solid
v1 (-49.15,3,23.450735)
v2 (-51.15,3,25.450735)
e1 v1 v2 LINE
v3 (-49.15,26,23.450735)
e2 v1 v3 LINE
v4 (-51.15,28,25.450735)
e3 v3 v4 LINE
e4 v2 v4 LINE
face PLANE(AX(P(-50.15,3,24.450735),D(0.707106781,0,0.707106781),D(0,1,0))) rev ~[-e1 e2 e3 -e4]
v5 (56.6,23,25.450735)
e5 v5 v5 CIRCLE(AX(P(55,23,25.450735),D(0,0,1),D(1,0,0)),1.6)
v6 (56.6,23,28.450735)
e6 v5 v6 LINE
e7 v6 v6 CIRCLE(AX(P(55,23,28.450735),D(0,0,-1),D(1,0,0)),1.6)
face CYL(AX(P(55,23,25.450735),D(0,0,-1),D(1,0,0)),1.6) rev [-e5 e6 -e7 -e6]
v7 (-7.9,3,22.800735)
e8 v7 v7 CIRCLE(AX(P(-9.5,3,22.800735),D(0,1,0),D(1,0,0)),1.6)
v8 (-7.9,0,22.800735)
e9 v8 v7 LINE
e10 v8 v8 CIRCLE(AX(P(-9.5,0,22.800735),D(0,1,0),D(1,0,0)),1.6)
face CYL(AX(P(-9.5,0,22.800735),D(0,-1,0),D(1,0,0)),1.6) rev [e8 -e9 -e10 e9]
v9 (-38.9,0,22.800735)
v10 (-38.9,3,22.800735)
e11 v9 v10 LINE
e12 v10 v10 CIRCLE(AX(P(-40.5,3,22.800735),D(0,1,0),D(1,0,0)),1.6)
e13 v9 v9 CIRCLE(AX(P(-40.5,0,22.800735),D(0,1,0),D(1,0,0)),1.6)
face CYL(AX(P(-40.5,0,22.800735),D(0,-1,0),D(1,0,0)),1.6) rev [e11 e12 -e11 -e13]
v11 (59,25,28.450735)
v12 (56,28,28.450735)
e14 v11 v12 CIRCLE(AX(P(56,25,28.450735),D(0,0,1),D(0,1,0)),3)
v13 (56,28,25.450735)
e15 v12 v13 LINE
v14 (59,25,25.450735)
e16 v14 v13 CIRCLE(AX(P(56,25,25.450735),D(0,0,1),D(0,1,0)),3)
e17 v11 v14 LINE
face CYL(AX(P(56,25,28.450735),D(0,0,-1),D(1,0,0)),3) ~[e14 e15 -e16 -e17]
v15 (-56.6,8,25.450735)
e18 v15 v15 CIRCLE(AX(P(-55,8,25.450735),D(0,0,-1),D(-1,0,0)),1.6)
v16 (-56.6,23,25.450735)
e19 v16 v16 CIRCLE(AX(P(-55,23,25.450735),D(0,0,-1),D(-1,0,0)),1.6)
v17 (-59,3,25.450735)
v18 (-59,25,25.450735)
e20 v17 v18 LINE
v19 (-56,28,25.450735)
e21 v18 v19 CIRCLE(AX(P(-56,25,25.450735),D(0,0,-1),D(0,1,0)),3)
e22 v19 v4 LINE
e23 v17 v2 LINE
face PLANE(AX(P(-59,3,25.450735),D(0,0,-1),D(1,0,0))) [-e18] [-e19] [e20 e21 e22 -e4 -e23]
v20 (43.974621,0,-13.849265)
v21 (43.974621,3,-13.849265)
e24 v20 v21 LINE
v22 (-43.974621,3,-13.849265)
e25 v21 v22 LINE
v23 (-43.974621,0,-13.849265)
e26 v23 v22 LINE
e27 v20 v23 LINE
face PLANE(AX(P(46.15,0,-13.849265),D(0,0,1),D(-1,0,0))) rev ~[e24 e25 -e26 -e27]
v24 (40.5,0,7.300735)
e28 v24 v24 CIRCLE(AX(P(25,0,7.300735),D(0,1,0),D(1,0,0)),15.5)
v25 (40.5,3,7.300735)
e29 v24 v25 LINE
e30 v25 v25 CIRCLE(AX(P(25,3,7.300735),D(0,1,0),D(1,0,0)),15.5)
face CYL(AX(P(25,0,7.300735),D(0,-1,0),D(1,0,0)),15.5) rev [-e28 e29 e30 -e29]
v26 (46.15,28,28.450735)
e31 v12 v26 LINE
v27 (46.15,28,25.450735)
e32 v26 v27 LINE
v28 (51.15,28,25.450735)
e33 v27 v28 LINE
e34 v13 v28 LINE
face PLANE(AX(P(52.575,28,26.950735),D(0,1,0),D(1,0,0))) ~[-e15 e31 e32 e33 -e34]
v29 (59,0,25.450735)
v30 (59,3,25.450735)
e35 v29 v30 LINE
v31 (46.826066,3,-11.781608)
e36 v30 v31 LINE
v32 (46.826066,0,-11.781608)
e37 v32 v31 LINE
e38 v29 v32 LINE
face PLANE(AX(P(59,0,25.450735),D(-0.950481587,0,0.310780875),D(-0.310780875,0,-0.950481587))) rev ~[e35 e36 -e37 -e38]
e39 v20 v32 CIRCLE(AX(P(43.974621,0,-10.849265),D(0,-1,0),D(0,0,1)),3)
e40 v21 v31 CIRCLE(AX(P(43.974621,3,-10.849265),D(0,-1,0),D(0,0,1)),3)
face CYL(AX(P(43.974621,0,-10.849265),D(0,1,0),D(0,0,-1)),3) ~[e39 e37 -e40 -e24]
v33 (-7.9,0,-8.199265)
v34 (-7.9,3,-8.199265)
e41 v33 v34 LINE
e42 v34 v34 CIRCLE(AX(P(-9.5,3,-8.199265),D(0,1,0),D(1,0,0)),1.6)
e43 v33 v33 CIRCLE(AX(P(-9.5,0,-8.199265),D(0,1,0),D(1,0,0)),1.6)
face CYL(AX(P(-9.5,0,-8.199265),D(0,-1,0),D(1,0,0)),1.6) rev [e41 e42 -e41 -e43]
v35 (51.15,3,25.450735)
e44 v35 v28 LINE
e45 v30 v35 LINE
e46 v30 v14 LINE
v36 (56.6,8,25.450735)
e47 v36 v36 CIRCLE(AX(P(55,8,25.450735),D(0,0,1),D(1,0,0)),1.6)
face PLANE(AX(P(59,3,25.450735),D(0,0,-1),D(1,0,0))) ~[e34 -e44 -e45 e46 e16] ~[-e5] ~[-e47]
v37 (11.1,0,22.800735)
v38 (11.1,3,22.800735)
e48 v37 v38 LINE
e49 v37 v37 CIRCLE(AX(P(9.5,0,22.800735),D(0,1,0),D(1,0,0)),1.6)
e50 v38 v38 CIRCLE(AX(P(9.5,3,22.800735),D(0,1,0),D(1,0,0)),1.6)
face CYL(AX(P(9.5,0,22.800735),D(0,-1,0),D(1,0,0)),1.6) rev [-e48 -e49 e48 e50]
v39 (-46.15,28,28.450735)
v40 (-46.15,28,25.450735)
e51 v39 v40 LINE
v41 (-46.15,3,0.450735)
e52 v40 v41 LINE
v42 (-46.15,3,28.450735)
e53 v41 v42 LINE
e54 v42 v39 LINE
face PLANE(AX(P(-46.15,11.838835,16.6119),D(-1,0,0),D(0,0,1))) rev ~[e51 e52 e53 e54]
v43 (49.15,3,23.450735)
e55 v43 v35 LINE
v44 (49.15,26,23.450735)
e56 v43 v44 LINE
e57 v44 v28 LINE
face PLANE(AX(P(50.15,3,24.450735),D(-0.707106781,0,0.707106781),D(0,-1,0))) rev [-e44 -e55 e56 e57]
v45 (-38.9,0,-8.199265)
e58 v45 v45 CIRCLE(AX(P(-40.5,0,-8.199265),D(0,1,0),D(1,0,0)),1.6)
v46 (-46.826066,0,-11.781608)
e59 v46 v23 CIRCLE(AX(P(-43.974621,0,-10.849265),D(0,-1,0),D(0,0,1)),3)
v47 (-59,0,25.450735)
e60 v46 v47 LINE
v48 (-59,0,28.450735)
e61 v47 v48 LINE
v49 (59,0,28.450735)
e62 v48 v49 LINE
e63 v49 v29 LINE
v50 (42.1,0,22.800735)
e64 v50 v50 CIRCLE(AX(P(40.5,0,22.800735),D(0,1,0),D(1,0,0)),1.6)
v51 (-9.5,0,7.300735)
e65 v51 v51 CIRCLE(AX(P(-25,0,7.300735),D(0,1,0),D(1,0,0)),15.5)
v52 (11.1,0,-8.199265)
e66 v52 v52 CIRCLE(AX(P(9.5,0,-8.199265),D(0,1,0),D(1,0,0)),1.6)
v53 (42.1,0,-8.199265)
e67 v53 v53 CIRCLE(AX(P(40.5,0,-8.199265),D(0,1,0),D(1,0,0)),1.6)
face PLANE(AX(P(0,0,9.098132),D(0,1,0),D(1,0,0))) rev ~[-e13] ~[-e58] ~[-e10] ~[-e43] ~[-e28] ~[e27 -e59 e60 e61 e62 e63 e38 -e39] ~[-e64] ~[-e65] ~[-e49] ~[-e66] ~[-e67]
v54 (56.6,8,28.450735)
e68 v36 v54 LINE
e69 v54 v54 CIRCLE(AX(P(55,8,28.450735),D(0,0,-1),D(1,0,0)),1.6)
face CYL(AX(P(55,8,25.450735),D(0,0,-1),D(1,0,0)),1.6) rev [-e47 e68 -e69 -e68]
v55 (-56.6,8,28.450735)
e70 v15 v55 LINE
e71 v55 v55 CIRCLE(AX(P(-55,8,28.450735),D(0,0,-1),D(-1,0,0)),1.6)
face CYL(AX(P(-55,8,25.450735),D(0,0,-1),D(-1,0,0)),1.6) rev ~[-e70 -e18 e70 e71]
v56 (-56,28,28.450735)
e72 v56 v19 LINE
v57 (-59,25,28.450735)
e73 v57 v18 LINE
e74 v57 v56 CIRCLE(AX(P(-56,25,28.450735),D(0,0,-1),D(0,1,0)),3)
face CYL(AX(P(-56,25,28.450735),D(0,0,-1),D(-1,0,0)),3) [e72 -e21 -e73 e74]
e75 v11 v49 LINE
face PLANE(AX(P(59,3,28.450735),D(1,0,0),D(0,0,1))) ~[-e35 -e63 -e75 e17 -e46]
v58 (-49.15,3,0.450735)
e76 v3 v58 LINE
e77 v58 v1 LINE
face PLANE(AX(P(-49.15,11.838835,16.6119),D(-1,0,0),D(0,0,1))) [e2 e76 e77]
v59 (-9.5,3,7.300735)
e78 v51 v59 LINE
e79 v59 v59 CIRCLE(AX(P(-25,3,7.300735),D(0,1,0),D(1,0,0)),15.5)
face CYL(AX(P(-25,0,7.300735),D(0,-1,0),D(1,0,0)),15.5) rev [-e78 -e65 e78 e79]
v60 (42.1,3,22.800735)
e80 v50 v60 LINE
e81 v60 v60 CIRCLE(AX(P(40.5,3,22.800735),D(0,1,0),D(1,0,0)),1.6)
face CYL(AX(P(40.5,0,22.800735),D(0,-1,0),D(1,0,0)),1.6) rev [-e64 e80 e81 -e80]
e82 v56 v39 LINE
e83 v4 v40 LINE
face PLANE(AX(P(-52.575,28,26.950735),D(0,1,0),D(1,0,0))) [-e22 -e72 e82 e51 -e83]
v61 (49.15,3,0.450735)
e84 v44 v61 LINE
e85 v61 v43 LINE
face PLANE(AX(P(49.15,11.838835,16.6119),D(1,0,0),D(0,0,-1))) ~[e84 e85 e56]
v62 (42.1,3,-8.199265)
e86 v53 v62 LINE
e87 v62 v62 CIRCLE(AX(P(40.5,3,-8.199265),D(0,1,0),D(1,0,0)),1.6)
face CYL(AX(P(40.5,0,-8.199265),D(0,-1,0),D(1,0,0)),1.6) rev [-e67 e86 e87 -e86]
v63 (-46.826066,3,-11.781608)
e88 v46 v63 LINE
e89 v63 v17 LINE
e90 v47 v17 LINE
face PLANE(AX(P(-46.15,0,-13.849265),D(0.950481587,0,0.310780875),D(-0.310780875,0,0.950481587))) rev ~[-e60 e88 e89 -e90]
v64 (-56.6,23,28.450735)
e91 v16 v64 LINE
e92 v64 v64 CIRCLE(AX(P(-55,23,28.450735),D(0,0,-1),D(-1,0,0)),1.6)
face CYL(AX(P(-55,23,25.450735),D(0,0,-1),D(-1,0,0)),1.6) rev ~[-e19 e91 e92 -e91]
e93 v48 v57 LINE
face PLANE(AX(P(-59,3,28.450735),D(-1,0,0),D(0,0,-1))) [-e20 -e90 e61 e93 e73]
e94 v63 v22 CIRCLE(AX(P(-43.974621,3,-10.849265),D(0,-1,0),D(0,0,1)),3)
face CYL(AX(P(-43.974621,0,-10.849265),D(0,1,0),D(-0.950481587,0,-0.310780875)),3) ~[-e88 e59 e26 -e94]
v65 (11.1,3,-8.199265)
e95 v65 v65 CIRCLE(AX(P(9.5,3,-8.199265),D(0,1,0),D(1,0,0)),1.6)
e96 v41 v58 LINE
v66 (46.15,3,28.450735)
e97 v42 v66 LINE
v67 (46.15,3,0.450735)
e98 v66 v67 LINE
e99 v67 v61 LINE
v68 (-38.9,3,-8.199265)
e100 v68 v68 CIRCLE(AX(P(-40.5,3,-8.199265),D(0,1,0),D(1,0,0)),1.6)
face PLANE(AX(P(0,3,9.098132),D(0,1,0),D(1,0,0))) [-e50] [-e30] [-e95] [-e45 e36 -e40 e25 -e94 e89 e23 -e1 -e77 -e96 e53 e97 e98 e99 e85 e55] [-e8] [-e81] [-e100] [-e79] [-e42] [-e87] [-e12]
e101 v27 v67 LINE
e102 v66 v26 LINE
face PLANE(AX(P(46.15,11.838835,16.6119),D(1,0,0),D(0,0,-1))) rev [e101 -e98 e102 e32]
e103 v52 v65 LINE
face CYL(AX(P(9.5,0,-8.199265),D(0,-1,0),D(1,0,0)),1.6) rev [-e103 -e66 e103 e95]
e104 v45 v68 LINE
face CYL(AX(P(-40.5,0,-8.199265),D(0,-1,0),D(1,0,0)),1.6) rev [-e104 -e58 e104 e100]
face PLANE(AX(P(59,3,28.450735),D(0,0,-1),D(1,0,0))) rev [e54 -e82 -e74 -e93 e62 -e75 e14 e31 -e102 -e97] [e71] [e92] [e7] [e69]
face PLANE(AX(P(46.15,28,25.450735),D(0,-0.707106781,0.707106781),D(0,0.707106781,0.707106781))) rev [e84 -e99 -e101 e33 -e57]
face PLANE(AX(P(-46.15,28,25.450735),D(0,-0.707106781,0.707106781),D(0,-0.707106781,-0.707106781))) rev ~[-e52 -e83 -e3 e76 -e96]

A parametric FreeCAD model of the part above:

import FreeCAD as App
import Part
import Sketcher
Q = App.Units.Quantity


def edges_at(feature, points):
    """Names of the edges that pass closest to the given points."""
    edges = feature.Shape.Edges
    near = lambda p: min(range(len(edges)), key=lambda i: edges[i].distToShape(Part.Vertex(*p))[0])
    return sorted({f"Edge{near(p) + 1}" for p in points})


def add_polygon(sketch, points):
    """Adds a closed chain of lines whose ends are joined by coincident constraints."""
    first, n = sketch.GeometryCount, len(points)
    for a, b in zip(points, points[1:] + points[:1]):
        sketch.addGeometry(Part.LineSegment(App.Vector(*a, 0), App.Vector(*b, 0)), False)
    for i in range(n):
        sketch.addConstraint(Sketcher.Constraint("Coincident", first + i, 2, first + (i + 1) % n, 1))

doc = App.newDocument("Part")
body = doc.addObject("PartDesign::Body", "Body")

# Sketch on XZ plane
sketch1 = body.newObject("Sketcher::SketchObject", "Sketch")
sketch1.AttachmentSupport = (doc.getObject("XZ_Plane"), [""])
sketch1.MapMode = "FlatFace"
add_polygon(sketch1, [(46.15, -13.849265), (-46.15, -13.849265), (-59, 25.450735), (-59, 28.450735), (59, 28.450735), (59, 25.450735)])  # lines 0-5
sketch1.addGeometry(Part.Circle(App.Vector(-40.5, 22.800735, 0), App.Vector(0, 0, 1), 1.6), False)  # 6
sketch1.addGeometry(Part.Circle(App.Vector(-9.5, 22.800735, 0), App.Vector(0, 0, 1), 1.6), False)  # 7
sketch1.addGeometry(Part.Circle(App.Vector(9.5, 22.800735, 0), App.Vector(0, 0, 1), 1.6), False)  # 8
sketch1.addGeometry(Part.Circle(App.Vector(40.5, 22.800735, 0), App.Vector(0, 0, 1), 1.6), False)  # 9
sketch1.addGeometry(Part.Circle(App.Vector(-25, 7.300735, 0), App.Vector(0, 0, 1), 15.5), False)  # 10
sketch1.addGeometry(Part.Circle(App.Vector(-40.5, -8.199265, 0), App.Vector(0, 0, 1), 1.6), False)  # 11
sketch1.addGeometry(Part.Circle(App.Vector(-9.5, -8.199265, 0), App.Vector(0, 0, 1), 1.6), False)  # 12
sketch1.addGeometry(Part.Circle(App.Vector(25, 7.300735, 0), App.Vector(0, 0, 1), 15.5), False)  # 13
sketch1.addGeometry(Part.Circle(App.Vector(9.5, -8.199265, 0), App.Vector(0, 0, 1), 1.6), False)  # 14
sketch1.addGeometry(Part.Circle(App.Vector(40.5, -8.199265, 0), App.Vector(0, 0, 1), 1.6), False)  # 15
sketch1.addConstraint(Sketcher.Constraint("Horizontal", 0))
sketch1.addConstraint(Sketcher.Constraint("Vertical", 2))
sketch1.addConstraint(Sketcher.Constraint("Horizontal", 3))
sketch1.addConstraint(Sketcher.Constraint("Vertical", 4))
sketch1.addConstraint(Sketcher.Constraint("Equal", 6, 7))
sketch1.addConstraint(Sketcher.Constraint("Equal", 7, 8))
sketch1.addConstraint(Sketcher.Constraint("Equal", 8, 9))
sketch1.addConstraint(Sketcher.Constraint("Equal", 9, 11))
sketch1.addConstraint(Sketcher.Constraint("Equal", 11, 12))
sketch1.addConstraint(Sketcher.Constraint("Equal", 10, 13))
sketch1.addConstraint(Sketcher.Constraint("Equal", 12, 14))
sketch1.addConstraint(Sketcher.Constraint("Equal", 14, 15))
sketch1.addConstraint(Sketcher.Constraint("Symmetric", 7, 3, 8, 3, -2))
sketch1.addConstraint(Sketcher.Constraint("Symmetric", 6, 3, 9, 3, -2))
sketch1.addConstraint(Sketcher.Constraint("Symmetric", 10, 3, 13, 3, -2))
sketch1.addConstraint(Sketcher.Constraint("Symmetric", 12, 3, 14, 3, -2))
sketch1.addConstraint(Sketcher.Constraint("Symmetric", 11, 3, 15, 3, -2))
sketch1.addConstraint(Sketcher.Constraint("Symmetric", 1, 2, 4, 2, -2))
sketch1.addConstraint(Sketcher.Constraint("Horizontal", 6, 3, 7, 3))
sketch1.addConstraint(Sketcher.Constraint("Horizontal", 11, 3, 12, 3))
sketch1.addConstraint(Sketcher.Constraint("Vertical", 6, 3, 11, 3))
sketch1.addConstraint(Sketcher.Constraint("Vertical", 7, 3, 12, 3))
sketch1.addConstraint(Sketcher.Constraint("Equal", 1, 5))
sketch1.addConstraint(Sketcher.Constraint("Diameter", 10, Q("31 mm")))
sketch1.addConstraint(Sketcher.Constraint("Diameter", 6, Q("3.2 mm")))
sketch1.addConstraint(Sketcher.Constraint("DistanceX", 3, 1, 3, 2, Q("118 mm")))
sketch1.addConstraint(Sketcher.Constraint("DistanceY", 2, 1, 2, 2, Q("3 mm")))
sketch1.addConstraint(Sketcher.Constraint("DistanceX", 0, 2, 0, 1, Q("92.3 mm")))
sketch1.addConstraint(Sketcher.Constraint("DistanceX", 10, 3, -1, 1, Q("25 mm")))
sketch1.addConstraint(Sketcher.Constraint("DistanceX", 6, 3, 7, 3, Q("31 mm")))
sketch1.addConstraint(Sketcher.Constraint("DistanceX", 7, 3, 8, 3, Q("19 mm")))
sketch1.addConstraint(Sketcher.Constraint("DistanceY", 11, 3, 6, 3, Q("31 mm")))
sketch1.addConstraint(Sketcher.Constraint("DistanceY", 10, 3, 6, 3, Q("15.5 mm")))
sketch1.addConstraint(Sketcher.Constraint("DistanceY", 0, 2, 1, 2, Q("39.3 mm")))
sketch1.addConstraint(Sketcher.Constraint("DistanceY", 0, 2, 11, 3, Q("5.65 mm")))
sketch1.addConstraint(Sketcher.Constraint("DistanceY", -1, 1, 6, 3, Q("22.800735 mm")))
pad1 = body.newObject("PartDesign::Pad", "Pad")
pad1.Profile = sketch1
pad1.Length = 3
pad1.Reversed = True

# Sketch on XZ plane
sketch2 = body.newObject("Sketcher::SketchObject", "Sketch001")
sketch2.AttachmentSupport = (doc.getObject("XZ_Plane"), [""])
sketch2.MapMode = "FlatFace"
sketch2.AttachmentOffset = App.Placement(App.Vector(0, 0, -3), App.Rotation())
add_polygon(sketch2, [(-59, 25.450735), (-59, 28.450735), (-46.15, 28.450735), (-46.15, 25.450735)])  # lines 0-3
sketch2.addConstraint(Sketcher.Constraint("Vertical", 0))
sketch2.addConstraint(Sketcher.Constraint("Horizontal", 1))
sketch2.addConstraint(Sketcher.Constraint("Vertical", 2))
sketch2.addConstraint(Sketcher.Constraint("Horizontal", 3))
sketch2.addConstraint(Sketcher.Constraint("DistanceY", 0, 1, 0, 2, Q("3 mm")))
sketch2.addConstraint(Sketcher.Constraint("DistanceX", 0, 2, -1, 1, Q("59 mm")))
sketch2.addConstraint(Sketcher.Constraint("DistanceX", 1, 1, 1, 2, Q("12.85 mm")))
sketch2.addConstraint(Sketcher.Constraint("DistanceY", -1, 1, 0, 2, Q("28.450735 mm")))
pad2 = body.newObject("PartDesign::Pad", "Pad001")
pad2.Profile = sketch2
pad2.Length = 25
pad2.Reversed = True

# Sketch on XY plane
sketch3 = body.newObject("Sketcher::SketchObject", "Sketch002")
sketch3.AttachmentSupport = (doc.getObject("XY_Plane"), [""])
sketch3.MapMode = "FlatFace"
sketch3.AttachmentOffset = App.Placement(App.Vector(0, 0, 25.450735), App.Rotation())
sketch3.addGeometry(Part.Circle(App.Vector(-55, 8, 0), App.Vector(0, 0, 1), 1.6), False)
sketch3.addGeometry(Part.Circle(App.Vector(-55, 23, 0), App.Vector(0, 0, 1), 1.6), False)
sketch3.addConstraint(Sketcher.Constraint("Equal", 0, 1))
sketch3.addConstraint(Sketcher.Constraint("Vertical", 0, 3, 1, 3))
sketch3.addConstraint(Sketcher.Constraint("Diameter", 0, Q("3.2 mm")))
sketch3.addConstraint(Sketcher.Constraint("DistanceX", 0, 3, -1, 1, Q("55 mm")))
sketch3.addConstraint(Sketcher.Constraint("DistanceY", -1, 1, 0, 3, Q("8 mm")))
sketch3.addConstraint(Sketcher.Constraint("DistanceY", -1, 1, 1, 3, Q("23 mm")))
pocket1 = body.newObject("PartDesign::Pocket", "Pocket")
pocket1.Profile = sketch3
pocket1.Type = "ThroughAll"
pocket1.Reversed = True

# Sketch on YZ plane
sketch4 = body.newObject("Sketcher::SketchObject", "Sketch003")
sketch4.AttachmentSupport = (doc.getObject("YZ_Plane"), [""])
sketch4.MapMode = "FlatFace"
sketch4.AttachmentOffset = App.Placement(App.Vector(0, 0, -46.15), App.Rotation())
add_polygon(sketch4, [(3, 0.450735), (28, 25.450735), (3, 25.450735)])  # lines 0-2
sketch4.addConstraint(Sketcher.Constraint("Horizontal", 1))
sketch4.addConstraint(Sketcher.Constraint("Vertical", 2))
sketch4.addConstraint(Sketcher.Constraint("Equal", 1, 2))
sketch4.addConstraint(Sketcher.Constraint("DistanceX", 1, 2, 1, 1, Q("25 mm")))
sketch4.addConstraint(Sketcher.Constraint("DistanceX", -1, 1, 0, 2, Q("28 mm")))
sketch4.addConstraint(Sketcher.Constraint("DistanceY", -1, 1, 0, 2, Q("25.450735 mm")))
pad3 = body.newObject("PartDesign::Pad", "Pad002")
pad3.Profile = sketch4
pad3.Length = 3
pad3.Reversed = True
doc.recompute()

chamfer = body.newObject("PartDesign::Chamfer", "Chamfer")
chamfer.Base = (pad3, edges_at(pad3, [(-49.15, 15.5, 25.451)]))
chamfer.Size = 2
doc.recompute()

fillet = body.newObject("PartDesign::Fillet", "Fillet")
fillet.Base = (chamfer, edges_at(chamfer, [(-59, 28, 26.951)]))
fillet.Radius = 3
doc.recompute()

fillet2 = body.newObject("PartDesign::Fillet", "Fillet001")
fillet2.Base = (fillet, edges_at(fillet, [(-46.15, 1.5, -13.849), (46.15, 1.5, -13.849)]))
fillet2.Radius = 3
doc.recompute()

mirrored = body.newObject("PartDesign::Mirrored", "Mirrored")
mirrored.Originals = [pad2, pocket1, pad3]
mirrored.MirrorPlane = (doc.getObject("YZ_Plane"), [""])
body.Tip = mirrored
doc.recompute()

chamfer2 = body.newObject("PartDesign::Chamfer", "Chamfer001")
chamfer2.Base = (mirrored, edges_at(mirrored, [(49.15, 15.5, 25.451)]))
chamfer2.Size = 2
doc.recompute()

fillet3 = body.newObject("PartDesign::Fillet", "Fillet002")
fillet3.Base = (chamfer2, edges_at(chamfer2, [(59, 28, 26.951)]))
fillet3.Radius = 3

doc.recompute()
